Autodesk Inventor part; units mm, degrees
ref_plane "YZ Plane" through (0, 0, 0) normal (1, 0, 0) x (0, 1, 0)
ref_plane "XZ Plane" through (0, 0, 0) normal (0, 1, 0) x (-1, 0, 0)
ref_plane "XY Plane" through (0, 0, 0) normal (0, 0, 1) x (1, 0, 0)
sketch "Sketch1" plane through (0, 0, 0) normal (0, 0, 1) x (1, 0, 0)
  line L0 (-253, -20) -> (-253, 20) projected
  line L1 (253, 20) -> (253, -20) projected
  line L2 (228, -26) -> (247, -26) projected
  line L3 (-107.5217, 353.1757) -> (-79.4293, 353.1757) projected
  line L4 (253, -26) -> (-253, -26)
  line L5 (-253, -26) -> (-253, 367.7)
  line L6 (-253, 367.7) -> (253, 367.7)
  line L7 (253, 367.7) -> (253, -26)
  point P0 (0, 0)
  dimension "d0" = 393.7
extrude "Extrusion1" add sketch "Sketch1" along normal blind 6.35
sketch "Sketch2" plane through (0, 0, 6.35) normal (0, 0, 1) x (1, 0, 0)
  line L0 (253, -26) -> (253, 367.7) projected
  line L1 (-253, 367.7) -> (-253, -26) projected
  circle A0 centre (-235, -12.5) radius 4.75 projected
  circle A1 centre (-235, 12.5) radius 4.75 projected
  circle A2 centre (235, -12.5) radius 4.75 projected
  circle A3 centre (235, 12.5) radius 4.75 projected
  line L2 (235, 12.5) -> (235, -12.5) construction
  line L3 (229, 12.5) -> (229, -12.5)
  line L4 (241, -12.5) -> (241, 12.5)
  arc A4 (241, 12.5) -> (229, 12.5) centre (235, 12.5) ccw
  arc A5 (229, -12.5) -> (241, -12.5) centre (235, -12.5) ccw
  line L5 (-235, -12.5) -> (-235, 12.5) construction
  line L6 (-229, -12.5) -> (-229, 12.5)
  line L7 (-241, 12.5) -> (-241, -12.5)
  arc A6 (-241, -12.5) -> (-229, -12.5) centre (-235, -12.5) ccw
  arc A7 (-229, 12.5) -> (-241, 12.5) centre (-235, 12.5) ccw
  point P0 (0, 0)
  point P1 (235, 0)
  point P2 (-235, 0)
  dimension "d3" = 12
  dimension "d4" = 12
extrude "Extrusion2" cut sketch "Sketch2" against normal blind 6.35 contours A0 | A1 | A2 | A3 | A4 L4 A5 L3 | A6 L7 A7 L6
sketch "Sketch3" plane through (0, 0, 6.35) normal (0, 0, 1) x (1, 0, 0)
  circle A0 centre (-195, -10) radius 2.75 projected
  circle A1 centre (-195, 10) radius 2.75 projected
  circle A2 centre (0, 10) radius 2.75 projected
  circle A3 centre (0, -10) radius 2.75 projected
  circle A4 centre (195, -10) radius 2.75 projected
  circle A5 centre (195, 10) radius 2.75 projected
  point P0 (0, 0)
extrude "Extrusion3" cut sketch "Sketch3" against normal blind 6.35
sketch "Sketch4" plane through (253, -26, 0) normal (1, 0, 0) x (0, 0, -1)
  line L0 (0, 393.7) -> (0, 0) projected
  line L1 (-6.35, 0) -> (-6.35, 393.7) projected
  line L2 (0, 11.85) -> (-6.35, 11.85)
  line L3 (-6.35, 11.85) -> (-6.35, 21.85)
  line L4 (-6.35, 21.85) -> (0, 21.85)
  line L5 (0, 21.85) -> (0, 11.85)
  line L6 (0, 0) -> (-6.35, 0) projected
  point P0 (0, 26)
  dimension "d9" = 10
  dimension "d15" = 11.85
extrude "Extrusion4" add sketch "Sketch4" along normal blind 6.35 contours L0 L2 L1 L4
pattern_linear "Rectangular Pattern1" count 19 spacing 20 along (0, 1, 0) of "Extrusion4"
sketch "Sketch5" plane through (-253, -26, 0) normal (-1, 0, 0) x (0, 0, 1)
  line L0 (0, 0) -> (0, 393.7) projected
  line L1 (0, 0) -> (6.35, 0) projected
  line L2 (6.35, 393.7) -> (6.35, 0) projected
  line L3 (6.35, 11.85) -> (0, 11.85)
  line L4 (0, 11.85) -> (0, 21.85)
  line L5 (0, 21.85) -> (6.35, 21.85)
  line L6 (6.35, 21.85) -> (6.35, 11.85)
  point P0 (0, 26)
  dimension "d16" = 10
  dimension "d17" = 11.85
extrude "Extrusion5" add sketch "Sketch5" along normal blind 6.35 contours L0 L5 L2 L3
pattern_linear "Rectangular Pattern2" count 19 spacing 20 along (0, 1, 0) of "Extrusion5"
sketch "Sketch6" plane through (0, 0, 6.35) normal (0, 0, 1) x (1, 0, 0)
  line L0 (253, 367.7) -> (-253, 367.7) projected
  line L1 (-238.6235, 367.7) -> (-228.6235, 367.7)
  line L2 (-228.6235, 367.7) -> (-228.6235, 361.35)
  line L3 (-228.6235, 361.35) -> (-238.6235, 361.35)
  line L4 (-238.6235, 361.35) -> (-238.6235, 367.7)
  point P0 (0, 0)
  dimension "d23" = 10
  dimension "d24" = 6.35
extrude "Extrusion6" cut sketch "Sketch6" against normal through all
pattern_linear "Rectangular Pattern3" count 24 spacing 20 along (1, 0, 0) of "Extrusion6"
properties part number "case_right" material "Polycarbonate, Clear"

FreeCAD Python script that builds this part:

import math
import FreeCAD as App
import Part
import Sketcher
Q = App.Units.Quantity

doc = App.newDocument("Part")
params = doc.addObject("Spreadsheet::Sheet", "Params")
for row, (alias, value) in enumerate([
    ("sketch1_height", "393.7 mm"),
    ("sketch1_width", "506 mm"),
    ("pad1_length", "6.35 mm"),
    ("sketch2_radius", "6 mm"),
    ("sketch2_height", "25 mm"),
    ("pocket1_length", "6.35 mm"),
    ("sketch3_diameter", "5.5 mm"),
    ("pocket2_length", "6.35 mm"),
    ("sketch4_width", "10 mm"),
    ("sketch4_height", "6.35 mm"),
    ("pad2_length", "6.35 mm"),
    ("linearpattern_pitch", "20 mm"),
    ("sketch5_width", "10 mm"),
    ("sketch5_height", "6.35 mm"),
    ("pad3_length", "6.35 mm"),
    ("linearpattern2_pitch", "20 mm"),
    ("sketch6_width", "10 mm"),
    ("sketch6_height", "6.35 mm"),
    ("linearpattern3_pitch", "20 mm"),
], start=1):
    params.set(f"A{row}", alias)
    params.set(f"B{row}", "=" + value)
    params.setAlias(f"B{row}", alias)

body = doc.addObject("PartDesign::Body", "Body")

sketch1 = body.newObject("Sketcher::SketchObject", "Sketch")
sketch1.AttachmentSupport = (doc.getObject("XY_Plane"), [""])
sketch1.MapMode = "FlatFace"
sketch1.addGeometry([
    Part.LineSegment(App.Vector(-253, 368, 0), App.Vector(-253, -26, 0)),
    Part.LineSegment(App.Vector(-253, -26, 0), App.Vector(253, -26, 0)),
    Part.LineSegment(App.Vector(253, -26, 0), App.Vector(253, 368, 0)),
    Part.LineSegment(App.Vector(253, 368, 0), App.Vector(-253, 368, 0)),
], False)
sketch1.addConstraint([
    Sketcher.Constraint("Coincident", 0, 2, 1, 1),
    Sketcher.Constraint("Coincident", 1, 2, 2, 1),
    Sketcher.Constraint("Coincident", 2, 2, 3, 1),
    Sketcher.Constraint("Coincident", 3, 2, 0, 1),
    Sketcher.Constraint("Vertical", 0),
    Sketcher.Constraint("Horizontal", 1),
    Sketcher.Constraint("Vertical", 2),
    Sketcher.Constraint("Horizontal", 3),
    Sketcher.Constraint("DistanceY", 0, 2, 0, 1, Q("393.7 mm")),
    Sketcher.Constraint("DistanceX", 1, 1, 1, 2, Q("506 mm")),
    Sketcher.Constraint("DistanceX", 0, 2, -1, 1, Q("253 mm")),
    Sketcher.Constraint("DistanceY", 0, 2, -1, 1, Q("26 mm")),
])
sketch1.setExpression("Constraints[8]", "Params.sketch1_height")
sketch1.setExpression("Constraints[9]", "Params.sketch1_width")
pad1 = body.newObject("PartDesign::Pad", "Pad")
pad1.Profile = sketch1
pad1.setExpression("Length", "Params.pad1_length")

sketch2 = body.newObject("Sketcher::SketchObject", "Sketch001")
sketch2.AttachmentSupport = (doc.getObject("XY_Plane"), [""])
sketch2.MapMode = "FlatFace"
sketch2.AttachmentOffset = App.Placement(App.Vector(0, 0, 6.35), App.Rotation())
sketch2.addGeometry([
    Part.ArcOfCircle(Part.Circle(App.Vector(-235, -12, 0), App.Vector(0, 0, 1), 6), math.radians(180), math.radians(360)),
    Part.LineSegment(App.Vector(-229, -12, 0), App.Vector(-229, 12, 0)),
    Part.ArcOfCircle(Part.Circle(App.Vector(-235, 12, 0), App.Vector(0, 0, 1), 6), math.radians(0), math.radians(180)),
    Part.LineSegment(App.Vector(-241, 12, 0), App.Vector(-241, -12, 0)),
    Part.ArcOfCircle(Part.Circle(App.Vector(235, 12, 0), App.Vector(0, 0, 1), 6), math.radians(0), math.radians(180)),
    Part.LineSegment(App.Vector(229, 12, 0), App.Vector(229, -12, 0)),
    Part.ArcOfCircle(Part.Circle(App.Vector(235, -12, 0), App.Vector(0, 0, 1), 6), math.radians(180), math.radians(360)),
    Part.LineSegment(App.Vector(241, -12, 0), App.Vector(241, 12, 0)),
], False)
sketch2.addConstraint([
    Sketcher.Constraint("Tangent", 0, 2, 1, 1),
    Sketcher.Constraint("Tangent", 1, 2, 2, 1),
    Sketcher.Constraint("Tangent", 2, 2, 3, 1),
    Sketcher.Constraint("Tangent", 3, 2, 0, 1),
    Sketcher.Constraint("Tangent", 4, 2, 5, 1),
    Sketcher.Constraint("Tangent", 5, 2, 6, 1),
    Sketcher.Constraint("Tangent", 6, 2, 7, 1),
    Sketcher.Constraint("Tangent", 7, 2, 4, 1),
    Sketcher.Constraint("Vertical", 1),
    Sketcher.Constraint("Vertical", 3),
    Sketcher.Constraint("Vertical", 5),
    Sketcher.Constraint("Vertical", 7),
    Sketcher.Constraint("Equal", 2, 4),
    Sketcher.Constraint("Symmetric", 0, 3, 4, 3, -1, 1),
    Sketcher.Constraint("Horizontal", 2, 3, 4, 3),
    Sketcher.Constraint("Horizontal", 0, 3, 6, 3),
    Sketcher.Constraint("Radius", 0, Q("6 mm")),
    Sketcher.Constraint("DistanceY", 1, 1, 1, 2, Q("25 mm")),
    Sketcher.Constraint("DistanceX", 0, 3, -1, 1, Q("235 mm")),
])
sketch2.setExpression("Constraints[16]", "Params.sketch2_radius")
sketch2.setExpression("Constraints[17]", "Params.sketch2_height")
pocket1 = body.newObject("PartDesign::Pocket", "Pocket")
pocket1.Profile = sketch2
pocket1.setExpression("Length", "Params.pocket1_length")

sketch3 = body.newObject("Sketcher::SketchObject", "Sketch002")
sketch3.AttachmentSupport = (doc.getObject("XY_Plane"), [""])
sketch3.MapMode = "FlatFace"
sketch3.AttachmentOffset = App.Placement(App.Vector(0, 0, 6.35), App.Rotation())
sketch3.addGeometry([
    Part.Circle(App.Vector(-195, -10, 0), App.Vector(0, 0, 1), 2.8),
    Part.Circle(App.Vector(-195, 10, 0), App.Vector(0, 0, 1), 2.8),
    Part.Circle(App.Vector(0, 10, 0), App.Vector(0, 0, 1), 2.8),
    Part.Circle(App.Vector(0, -10, 0), App.Vector(0, 0, 1), 2.8),
    Part.Circle(App.Vector(195, -10, 0), App.Vector(0, 0, 1), 2.8),
    Part.Circle(App.Vector(195, 10, 0), App.Vector(0, 0, 1), 2.8),
], False)
sketch3.addConstraint([
    Sketcher.Constraint("Equal", 0, 1),
    Sketcher.Constraint("Equal", 1, 2),
    Sketcher.Constraint("Equal", 2, 3),
    Sketcher.Constraint("Equal", 3, 4),
    Sketcher.Constraint("Equal", 4, 5),
    Sketcher.Constraint("Symmetric", 2, 3, 3, 3, -1, 1),
    Sketcher.Constraint("Symmetric", 1, 3, 4, 3, -1, 1),
    Sketcher.Constraint("Symmetric", 0, 3, 5, 3, -1, 1),
    Sketcher.Constraint("Symmetric", 0, 3, 4, 3, -2),
    Sketcher.Constraint("PointOnObject", 2, 3, -2),
    Sketcher.Constraint("Horizontal", 1, 3, 2, 3),
    Sketcher.Constraint("Diameter", 0, Q("5.5 mm")),
    Sketcher.Constraint("DistanceX", 0, 3, -1, 1, Q("195 mm")),
    Sketcher.Constraint("DistanceY", 0, 3, -1, 1, Q("10 mm")),
])
sketch3.setExpression("Constraints[11]", "Params.sketch3_diameter")
pocket2 = body.newObject("PartDesign::Pocket", "Pocket001")
pocket2.Profile = sketch3
pocket2.setExpression("Length", "Params.pocket2_length")

sketch4 = body.newObject("Sketcher::SketchObject", "Sketch003")
sketch4.AttachmentSupport = (doc.getObject("YZ_Plane"), [""])
sketch4.MapMode = "FlatFace"
sketch4.AttachmentOffset = App.Placement(App.Vector(0, 0, 253), App.Rotation())
sketch4.addGeometry([
    Part.LineSegment(App.Vector(-14, 0, 0), App.Vector(-4, 0, 0)),
    Part.LineSegment(App.Vector(-4, 0, 0), App.Vector(-4, 6, 0)),
    Part.LineSegment(App.Vector(-4, 6, 0), App.Vector(-14, 6, 0)),
    Part.LineSegment(App.Vector(-14, 6, 0), App.Vector(-14, 0, 0)),
], False)
sketch4.addConstraint([
    Sketcher.Constraint("Coincident", 0, 2, 1, 1),
    Sketcher.Constraint("Coincident", 1, 2, 2, 1),
    Sketcher.Constraint("Coincident", 2, 2, 3, 1),
    Sketcher.Constraint("Coincident", 3, 2, 0, 1),
    Sketcher.Constraint("Horizontal", 0),
    Sketcher.Constraint("Vertical", 1),
    Sketcher.Constraint("Horizontal", 2),
    Sketcher.Constraint("Vertical", 3),
    Sketcher.Constraint("PointOnObject", 0, 2, -1),
    Sketcher.Constraint("DistanceX", 0, 1, 0, 2, Q("10 mm")),
    Sketcher.Constraint("DistanceY", 1, 1, 1, 2, Q("6.35 mm")),
    Sketcher.Constraint("DistanceX", 0, 2, -1, 1, Q("4.15 mm")),
])
sketch4.setExpression("Constraints[9]", "Params.sketch4_width")
sketch4.setExpression("Constraints[10]", "Params.sketch4_height")
pad2 = body.newObject("PartDesign::Pad", "Pad001")
pad2.Profile = sketch4
pad2.setExpression("Length", "Params.pad2_length")
doc.recompute()

linearpattern = body.newObject("PartDesign::LinearPattern", "LinearPattern")
linearpattern.Originals = [pad2]
linearpattern.Direction = (doc.getObject("Y_Axis"), [""])
linearpattern.Mode = "offset"
linearpattern.setExpression("Offset", "Params.linearpattern_pitch")
linearpattern.Occurrences = 19
body.Tip = linearpattern

sketch5 = body.newObject("Sketcher::SketchObject", "Sketch004")
sketch5.AttachmentSupport = (doc.getObject("YZ_Plane"), [""])
sketch5.MapMode = "FlatFace"
sketch5.AttachmentOffset = App.Placement(App.Vector(0, 0, -253), App.Rotation())
sketch5.addGeometry([
    Part.LineSegment(App.Vector(-4, 0, 0), App.Vector(-14, 0, 0)),
    Part.LineSegment(App.Vector(-14, 0, 0), App.Vector(-14, 6, 0)),
    Part.LineSegment(App.Vector(-14, 6, 0), App.Vector(-4, 6, 0)),
    Part.LineSegment(App.Vector(-4, 6, 0), App.Vector(-4, 0, 0)),
], False)
sketch5.addConstraint([
    Sketcher.Constraint("Coincident", 0, 2, 1, 1),
    Sketcher.Constraint("Coincident", 1, 2, 2, 1),
    Sketcher.Constraint("Coincident", 2, 2, 3, 1),
    Sketcher.Constraint("Coincident", 3, 2, 0, 1),
    Sketcher.Constraint("Horizontal", 0),
    Sketcher.Constraint("Vertical", 1),
    Sketcher.Constraint("Horizontal", 2),
    Sketcher.Constraint("Vertical", 3),
    Sketcher.Constraint("PointOnObject", 0, 2, -1),
    Sketcher.Constraint("DistanceX", 0, 2, 0, 1, Q("10 mm")),
    Sketcher.Constraint("DistanceY", 1, 1, 1, 2, Q("6.35 mm")),
    Sketcher.Constraint("DistanceX", 0, 2, -1, 1, Q("14.15 mm")),
])
sketch5.setExpression("Constraints[9]", "Params.sketch5_width")
sketch5.setExpression("Constraints[10]", "Params.sketch5_height")
pad3 = body.newObject("PartDesign::Pad", "Pad002")
pad3.Profile = sketch5
pad3.setExpression("Length", "Params.pad3_length")
pad3.Reversed = True
doc.recompute()

linearpattern2 = body.newObject("PartDesign::LinearPattern", "LinearPattern001")
linearpattern2.Originals = [pad3]
linearpattern2.Direction = (doc.getObject("Y_Axis"), [""])
linearpattern2.Mode = "offset"
linearpattern2.setExpression("Offset", "Params.linearpattern2_pitch")
linearpattern2.Occurrences = 19
body.Tip = linearpattern2

sketch6 = body.newObject("Sketcher::SketchObject", "Sketch005")
sketch6.AttachmentSupport = (doc.getObject("XY_Plane"), [""])
sketch6.MapMode = "FlatFace"
sketch6.AttachmentOffset = App.Placement(App.Vector(0, 0, 6.35), App.Rotation())
sketch6.addGeometry([
    Part.LineSegment(App.Vector(-229, 361, 0), App.Vector(-229, 368, 0)),
    Part.LineSegment(App.Vector(-229, 368, 0), App.Vector(-239, 368, 0)),
    Part.LineSegment(App.Vector(-239, 368, 0), App.Vector(-239, 361, 0)),
    Part.LineSegment(App.Vector(-239, 361, 0), App.Vector(-229, 361, 0)),
], False)
sketch6.addConstraint([
    Sketcher.Constraint("Coincident", 0, 2, 1, 1),
    Sketcher.Constraint("Coincident", 1, 2, 2, 1),
    Sketcher.Constraint("Coincident", 2, 2, 3, 1),
    Sketcher.Constraint("Coincident", 3, 2, 0, 1),
    Sketcher.Constraint("Vertical", 0),
    Sketcher.Constraint("Horizontal", 1),
    Sketcher.Constraint("Vertical", 2),
    Sketcher.Constraint("Horizontal", 3),
    Sketcher.Constraint("DistanceX", 1, 2, 1, 1, Q("10 mm")),
    Sketcher.Constraint("DistanceY", 0, 1, 0, 2, Q("6.35 mm")),
    Sketcher.Constraint("DistanceY", -1, 1, 0, 2, Q("367.7 mm")),
    Sketcher.Constraint("DistanceX", 0, 2, -1, 1, Q("228.6235 mm")),
])
sketch6.setExpression("Constraints[8]", "Params.sketch6_width")
sketch6.setExpression("Constraints[9]", "Params.sketch6_height")
pocket3 = body.newObject("PartDesign::Pocket", "Pocket002")
pocket3.Profile = sketch6
pocket3.Type = "ThroughAll"
doc.recompute()

linearpattern3 = body.newObject("PartDesign::LinearPattern", "LinearPattern002")
linearpattern3.Originals = [pocket3]
linearpattern3.Direction = (doc.getObject("X_Axis"), [""])
linearpattern3.Mode = "offset"
linearpattern3.setExpression("Offset", "Params.linearpattern3_pitch")
linearpattern3.Occurrences = 24
body.Tip = linearpattern3

doc.recompute()
